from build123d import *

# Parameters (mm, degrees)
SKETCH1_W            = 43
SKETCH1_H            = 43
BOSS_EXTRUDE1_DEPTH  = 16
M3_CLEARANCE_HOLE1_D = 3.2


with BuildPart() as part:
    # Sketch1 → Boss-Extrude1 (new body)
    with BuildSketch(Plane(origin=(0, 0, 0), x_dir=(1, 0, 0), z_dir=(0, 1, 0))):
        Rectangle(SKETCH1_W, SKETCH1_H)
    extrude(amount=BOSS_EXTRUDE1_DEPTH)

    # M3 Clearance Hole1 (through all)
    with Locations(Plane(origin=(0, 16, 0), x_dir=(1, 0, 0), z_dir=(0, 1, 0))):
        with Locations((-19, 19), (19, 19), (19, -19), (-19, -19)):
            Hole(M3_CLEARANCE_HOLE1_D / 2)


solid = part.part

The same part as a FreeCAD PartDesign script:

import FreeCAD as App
import Part
import Sketcher
Q = App.Units.Quantity


def add_polygon(sketch, points):
    """Adds a closed chain of lines whose ends are joined by coincident constraints."""
    first, n = sketch.GeometryCount, len(points)
    for a, b in zip(points, points[1:] + points[:1]):
        sketch.addGeometry(Part.LineSegment(App.Vector(*a, 0), App.Vector(*b, 0)), False)
    for i in range(n):
        sketch.addConstraint(Sketcher.Constraint("Coincident", first + i, 2, first + (i + 1) % n, 1))

doc = App.newDocument("Part")
params = doc.addObject("Spreadsheet::Sheet", "Params")
for row, (alias, value) in enumerate([
    ("sketch1_width", "43 mm"),
    ("pad1_length", "16 mm"),
    ("sketch2_diameter", "3.2 mm"),
    ("hole_diameter", "3.2 mm"),
], start=1):
    params.set(f"A{row}", alias)
    params.set(f"B{row}", "=" + value)
    params.setAlias(f"B{row}", alias)

body = doc.addObject("PartDesign::Body", "Body")

# Sketch on XZ plane
sketch1 = doc.addObject("Sketcher::SketchObject", "Sketch")
body.addObject(sketch1)
sketch1.AttachmentSupport = (doc.XZ_Plane, [""])
sketch1.MapMode = "FlatFace"
add_polygon(sketch1, [(-22, -22), (-22, 22), (22, 22), (22, -22)])  # lines 0-3
sketch1.addConstraint(Sketcher.Constraint("Vertical", 0))
sketch1.addConstraint(Sketcher.Constraint("Horizontal", 1))
sketch1.addConstraint(Sketcher.Constraint("Vertical", 2))
sketch1.addConstraint(Sketcher.Constraint("Horizontal", 3))
sketch1.addConstraint(Sketcher.Constraint("Symmetric", 0, 2, 2, 2, -1, 1))
sketch1.addConstraint(Sketcher.Constraint("Equal", 3, 0))
sketch1.addConstraint(Sketcher.Constraint("DistanceX", 1, 1, 1, 2, Q("43 mm")))
sketch1.setExpression("Constraints[10]", "Params.sketch1_width")
pad1 = doc.addObject("PartDesign::Pad", "Pad")
body.addObject(pad1)
pad1.Profile = sketch1
pad1.setExpression("Length", "Params.pad1_length")
pad1.Reversed = True

# Sketch on XZ plane
sketch2 = doc.addObject("Sketcher::SketchObject", "Sketch001")
body.addObject(sketch2)
sketch2.AttachmentSupport = (doc.XZ_Plane, [""])
sketch2.MapMode = "FlatFace"
sketch2.AttachmentOffset = App.Placement(App.Vector(0, 0, -16), App.Rotation())
sketch2.addGeometry(Part.Circle(App.Vector(-19, -19, 0), App.Vector(0, 0, 1), 1.6), False)
sketch2.addGeometry(Part.Circle(App.Vector(19, -19, 0), App.Vector(0, 0, 1), 1.6), False)
sketch2.addGeometry(Part.Circle(App.Vector(19, 19, 0), App.Vector(0, 0, 1), 1.6), False)
sketch2.addGeometry(Part.Circle(App.Vector(-19, 19, 0), App.Vector(0, 0, 1), 1.6), False)
sketch2.addConstraint(Sketcher.Constraint("Equal", 0, 1))
sketch2.addConstraint(Sketcher.Constraint("Equal", 1, 2))
sketch2.addConstraint(Sketcher.Constraint("Equal", 2, 3))
sketch2.addConstraint(Sketcher.Constraint("Symmetric", 0, 3, 2, 3, -1, 1))
sketch2.addConstraint(Sketcher.Constraint("Symmetric", 1, 3, 3, 3, -1, 1))
sketch2.addConstraint(Sketcher.Constraint("Symmetric", 0, 3, 1, 3, -2))
sketch2.addConstraint(Sketcher.Constraint("Diameter", 0, Q("3.2 mm")))
sketch2.addConstraint(Sketcher.Constraint("DistanceX", 0, 3, -1, 1, Q("19 mm")))
sketch2.addConstraint(Sketcher.Constraint("DistanceY", 0, 3, -1, 1, Q("19 mm")))
sketch2.setExpression("Constraints[6]", "Params.sketch2_diameter")
doc.recompute()
hole = doc.addObject("PartDesign::Hole", "Hole")
body.addObject(hole)
hole.Profile = sketch2
hole.ThreadType = "None"
hole.setExpression("Diameter", "Params.hole_diameter")
hole.DepthType = "ThroughAll"
hole.Reversed = True

doc.recompute()
